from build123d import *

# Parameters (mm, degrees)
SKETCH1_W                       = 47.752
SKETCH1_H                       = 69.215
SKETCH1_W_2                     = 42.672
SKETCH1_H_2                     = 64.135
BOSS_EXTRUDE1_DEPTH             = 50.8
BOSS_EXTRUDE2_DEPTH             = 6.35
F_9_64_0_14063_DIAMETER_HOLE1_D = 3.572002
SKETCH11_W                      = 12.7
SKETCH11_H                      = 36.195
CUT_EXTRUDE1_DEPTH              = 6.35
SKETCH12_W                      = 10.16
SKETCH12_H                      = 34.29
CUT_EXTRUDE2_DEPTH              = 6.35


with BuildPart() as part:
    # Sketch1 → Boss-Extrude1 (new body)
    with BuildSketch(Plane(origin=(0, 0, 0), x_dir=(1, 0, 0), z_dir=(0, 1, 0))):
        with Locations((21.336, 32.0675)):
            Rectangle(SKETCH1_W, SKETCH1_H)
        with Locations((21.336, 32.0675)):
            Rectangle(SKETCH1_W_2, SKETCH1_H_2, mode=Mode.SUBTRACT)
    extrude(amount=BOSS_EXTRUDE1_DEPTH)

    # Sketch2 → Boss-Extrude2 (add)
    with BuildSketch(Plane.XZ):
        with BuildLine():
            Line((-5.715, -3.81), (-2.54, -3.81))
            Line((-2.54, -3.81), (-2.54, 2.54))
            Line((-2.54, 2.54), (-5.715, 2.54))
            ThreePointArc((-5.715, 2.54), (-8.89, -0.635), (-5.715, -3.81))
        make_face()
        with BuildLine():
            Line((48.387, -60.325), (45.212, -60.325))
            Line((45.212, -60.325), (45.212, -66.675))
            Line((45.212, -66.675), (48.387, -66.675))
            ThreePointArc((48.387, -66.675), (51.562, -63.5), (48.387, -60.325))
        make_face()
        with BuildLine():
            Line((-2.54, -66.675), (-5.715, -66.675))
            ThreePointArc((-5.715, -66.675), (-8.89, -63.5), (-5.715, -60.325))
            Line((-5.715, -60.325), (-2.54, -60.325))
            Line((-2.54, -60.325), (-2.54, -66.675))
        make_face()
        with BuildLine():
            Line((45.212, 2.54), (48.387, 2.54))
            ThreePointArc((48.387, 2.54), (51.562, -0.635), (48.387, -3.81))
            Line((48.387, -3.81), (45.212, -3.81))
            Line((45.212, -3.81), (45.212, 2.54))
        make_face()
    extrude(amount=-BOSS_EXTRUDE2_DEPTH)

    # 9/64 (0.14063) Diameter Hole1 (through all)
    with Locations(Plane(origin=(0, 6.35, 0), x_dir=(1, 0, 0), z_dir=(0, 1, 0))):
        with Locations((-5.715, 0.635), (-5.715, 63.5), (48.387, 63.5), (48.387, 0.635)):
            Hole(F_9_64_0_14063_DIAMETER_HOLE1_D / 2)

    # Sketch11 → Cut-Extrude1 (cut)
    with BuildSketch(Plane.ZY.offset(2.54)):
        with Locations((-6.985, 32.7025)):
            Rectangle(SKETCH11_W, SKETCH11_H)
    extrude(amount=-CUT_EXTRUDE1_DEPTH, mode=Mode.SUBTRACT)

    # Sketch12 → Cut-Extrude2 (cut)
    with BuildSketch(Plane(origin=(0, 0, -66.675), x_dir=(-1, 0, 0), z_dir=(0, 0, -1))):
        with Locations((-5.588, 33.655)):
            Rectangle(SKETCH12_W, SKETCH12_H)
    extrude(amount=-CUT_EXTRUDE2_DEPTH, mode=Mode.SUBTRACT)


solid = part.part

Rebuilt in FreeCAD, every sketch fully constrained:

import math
import FreeCAD as App
import Part
import Sketcher
Q = App.Units.Quantity

doc = App.newDocument("Part")
body = doc.addObject("PartDesign::Body", "Body")

# Sketch on XZ plane
sketch1 = body.newObject("Sketcher::SketchObject", "Sketch")
sketch1.AttachmentSupport = (doc.getObject("XZ_Plane"), [""])
sketch1.MapMode = "FlatFace"
sketch1.addGeometry(Part.LineSegment(App.Vector(-3, -67, 0), App.Vector(-3, 3, 0)), False)
sketch1.addGeometry(Part.LineSegment(App.Vector(-3, 3, 0), App.Vector(45, 3, 0)), False)
sketch1.addGeometry(Part.LineSegment(App.Vector(45, 3, 0), App.Vector(45, -67, 0)), False)
sketch1.addGeometry(Part.LineSegment(App.Vector(45, -67, 0), App.Vector(-3, -67, 0)), False)
sketch1.addGeometry(Part.LineSegment(App.Vector(43, 0, 0), App.Vector(0, 0, 0)), False)
sketch1.addGeometry(Part.LineSegment(App.Vector(0, 0, 0), App.Vector(0, -64, 0)), False)
sketch1.addGeometry(Part.LineSegment(App.Vector(0, -64, 0), App.Vector(43, -64, 0)), False)
sketch1.addGeometry(Part.LineSegment(App.Vector(43, -64, 0), App.Vector(43, 0, 0)), False)
sketch1.addConstraint(Sketcher.Constraint("Coincident", 0, 2, 1, 1))
sketch1.addConstraint(Sketcher.Constraint("Coincident", 1, 2, 2, 1))
sketch1.addConstraint(Sketcher.Constraint("Coincident", 2, 2, 3, 1))
sketch1.addConstraint(Sketcher.Constraint("Coincident", 3, 2, 0, 1))
sketch1.addConstraint(Sketcher.Constraint("Coincident", 4, 2, 5, 1))
sketch1.addConstraint(Sketcher.Constraint("Coincident", 5, 2, 6, 1))
sketch1.addConstraint(Sketcher.Constraint("Coincident", 6, 2, 7, 1))
sketch1.addConstraint(Sketcher.Constraint("Coincident", 7, 2, 4, 1))
sketch1.addConstraint(Sketcher.Constraint("Vertical", 0))
sketch1.addConstraint(Sketcher.Constraint("Horizontal", 1))
sketch1.addConstraint(Sketcher.Constraint("Vertical", 2))
sketch1.addConstraint(Sketcher.Constraint("Horizontal", 3))
sketch1.addConstraint(Sketcher.Constraint("Horizontal", 4))
sketch1.addConstraint(Sketcher.Constraint("Vertical", 5))
sketch1.addConstraint(Sketcher.Constraint("Horizontal", 6))
sketch1.addConstraint(Sketcher.Constraint("Vertical", 7))
sketch1.addConstraint(Sketcher.Constraint("Coincident", 4, 2, -1, 1))
sketch1.addConstraint(Sketcher.Constraint("DistanceX", 1, 1, 1, 2, Q("1.88 in")))
sketch1.addConstraint(Sketcher.Constraint("DistanceX", 4, 2, 4, 1, Q("1.68 in")))
sketch1.addConstraint(Sketcher.Constraint("DistanceX", 0, 2, -1, 1, Q("0.1 in")))
sketch1.addConstraint(Sketcher.Constraint("DistanceY", -1, 1, 0, 2, Q("0.1 in")))
sketch1.addConstraint(Sketcher.Constraint("DistanceY", 3, 2, 5, 2, Q("0.1 in")))
sketch1.addConstraint(Sketcher.Constraint("DistanceY", 0, 1, 0, 2, Q("2.725 in")))
pad1 = body.newObject("PartDesign::Pad", "Pad")
pad1.Profile = sketch1
pad1.Length = Q("2 in")
pad1.Reversed = True

# Sketch on XZ plane
sketch2 = body.newObject("Sketcher::SketchObject", "Sketch001")
sketch2.AttachmentSupport = (doc.getObject("XZ_Plane"), [""])
sketch2.MapMode = "FlatFace"
sketch2.addGeometry(Part.LineSegment(App.Vector(-5.7, -3.8, 0), App.Vector(-2.5, -3.8, 0)), False)
sketch2.addGeometry(Part.LineSegment(App.Vector(-2.5, -3.8, 0), App.Vector(-2.5, 2.5, 0)), False)
sketch2.addGeometry(Part.LineSegment(App.Vector(-2.5, 2.5, 0), App.Vector(-5.7, 2.5, 0)), False)
sketch2.addGeometry(Part.ArcOfCircle(Part.Circle(App.Vector(-5.7, -0.6, 0), App.Vector(0, 0, 1), 3.2), math.radians(90), math.radians(270)), False)
sketch2.addGeometry(Part.LineSegment(App.Vector(48.4, -60.3, 0), App.Vector(45.2, -60.3, 0)), False)
sketch2.addGeometry(Part.LineSegment(App.Vector(45.2, -60.3, 0), App.Vector(45.2, -66.7, 0)), False)
sketch2.addGeometry(Part.LineSegment(App.Vector(45.2, -66.7, 0), App.Vector(48.4, -66.7, 0)), False)
sketch2.addGeometry(Part.ArcOfCircle(Part.Circle(App.Vector(48.4, -63.5, 0), App.Vector(0, 0, 1), 3.2), math.radians(-90), math.radians(90)), False)
sketch2.addGeometry(Part.LineSegment(App.Vector(-5.7, -66.7, 0), App.Vector(-2.5, -66.7, 0)), False)
sketch2.addGeometry(Part.LineSegment(App.Vector(-2.5, -66.7, 0), App.Vector(-2.5, -60.3, 0)), False)
sketch2.addGeometry(Part.LineSegment(App.Vector(-2.5, -60.3, 0), App.Vector(-5.7, -60.3, 0)), False)
sketch2.addGeometry(Part.ArcOfCircle(Part.Circle(App.Vector(-5.7, -63.5, 0), App.Vector(0, 0, 1), 3.2), math.radians(90), math.radians(270)), False)
sketch2.addGeometry(Part.LineSegment(App.Vector(48.4, 2.5, 0), App.Vector(45.2, 2.5, 0)), False)
sketch2.addGeometry(Part.LineSegment(App.Vector(45.2, 2.5, 0), App.Vector(45.2, -3.8, 0)), False)
sketch2.addGeometry(Part.LineSegment(App.Vector(45.2, -3.8, 0), App.Vector(48.4, -3.8, 0)), False)
sketch2.addGeometry(Part.ArcOfCircle(Part.Circle(App.Vector(48.4, -0.6, 0), App.Vector(0, 0, 1), 3.2), math.radians(-90), math.radians(90)), False)
sketch2.addConstraint(Sketcher.Constraint("Coincident", 0, 2, 1, 1))
sketch2.addConstraint(Sketcher.Constraint("Coincident", 1, 2, 2, 1))
sketch2.addConstraint(Sketcher.Constraint("Tangent", 2, 2, 3, 1))
sketch2.addConstraint(Sketcher.Constraint("Tangent", 3, 2, 0, 1))
sketch2.addConstraint(Sketcher.Constraint("Coincident", 4, 2, 5, 1))
sketch2.addConstraint(Sketcher.Constraint("Coincident", 5, 2, 6, 1))
sketch2.addConstraint(Sketcher.Constraint("Tangent", 6, 2, 7, 1))
sketch2.addConstraint(Sketcher.Constraint("Tangent", 7, 2, 4, 1))
sketch2.addConstraint(Sketcher.Constraint("Coincident", 8, 2, 9, 1))
sketch2.addConstraint(Sketcher.Constraint("Coincident", 9, 2, 10, 1))
sketch2.addConstraint(Sketcher.Constraint("Tangent", 10, 2, 11, 1))
sketch2.addConstraint(Sketcher.Constraint("Tangent", 11, 2, 8, 1))
sketch2.addConstraint(Sketcher.Constraint("Coincident", 12, 2, 13, 1))
sketch2.addConstraint(Sketcher.Constraint("Coincident", 13, 2, 14, 1))
sketch2.addConstraint(Sketcher.Constraint("Tangent", 14, 2, 15, 1))
sketch2.addConstraint(Sketcher.Constraint("Tangent", 15, 2, 12, 1))
sketch2.addConstraint(Sketcher.Constraint("Horizontal", 0))
sketch2.addConstraint(Sketcher.Constraint("Vertical", 1))
sketch2.addConstraint(Sketcher.Constraint("Horizontal", 2))
sketch2.addConstraint(Sketcher.Constraint("Horizontal", 4))
sketch2.addConstraint(Sketcher.Constraint("Vertical", 5))
sketch2.addConstraint(Sketcher.Constraint("Horizontal", 6))
sketch2.addConstraint(Sketcher.Constraint("Horizontal", 8))
sketch2.addConstraint(Sketcher.Constraint("Vertical", 9))
sketch2.addConstraint(Sketcher.Constraint("Horizontal", 10))
sketch2.addConstraint(Sketcher.Constraint("Horizontal", 12))
sketch2.addConstraint(Sketcher.Constraint("Vertical", 13))
sketch2.addConstraint(Sketcher.Constraint("Horizontal", 14))
sketch2.addConstraint(Sketcher.Constraint("Equal", 3, 7))
sketch2.addConstraint(Sketcher.Constraint("Equal", 7, 11))
sketch2.addConstraint(Sketcher.Constraint("Equal", 11, 15))
sketch2.addConstraint(Sketcher.Constraint("Horizontal", 7, 3, 11, 3))
sketch2.addConstraint(Sketcher.Constraint("Horizontal", 3, 3, 15, 3))
sketch2.addConstraint(Sketcher.Constraint("Vertical", 3, 3, 11, 3))
sketch2.addConstraint(Sketcher.Constraint("Vertical", 7, 3, 15, 3))
sketch2.addConstraint(Sketcher.Constraint("Vertical", 1, 2, 8, 2))
sketch2.addConstraint(Sketcher.Constraint("Vertical", 5, 2, 12, 2))
sketch2.addConstraint(Sketcher.Constraint("Equal", 2, 4))
sketch2.addConstraint(Sketcher.Constraint("Radius", 3, Q("0.125 in")))
sketch2.addConstraint(Sketcher.Constraint("DistanceY", 7, 3, -1, 1, Q("2.5 in")))
sketch2.addConstraint(Sketcher.Constraint("DistanceX", 0, 2, -1, 1, Q("0.1 in")))
sketch2.addConstraint(Sketcher.Constraint("DistanceY", -1, 1, 1, 2, Q("0.1 in")))
sketch2.addConstraint(Sketcher.Constraint("DistanceX", 0, 1, 0, 2, Q("0.125 in")))
sketch2.addConstraint(Sketcher.Constraint("DistanceX", -1, 1, 4, 2, Q("1.78 in")))
pad2 = body.newObject("PartDesign::Pad", "Pad001")
pad2.Profile = sketch2
pad2.Length = Q("0.25 in")
pad2.Reversed = True

# Sketch on XZ plane
sketch3 = body.newObject("Sketcher::SketchObject", "Sketch002")
sketch3.AttachmentSupport = (doc.getObject("XZ_Plane"), [""])
sketch3.MapMode = "FlatFace"
sketch3.AttachmentOffset = App.Placement(App.Vector(0, 0, -0.25 * 25.4), App.Rotation())
sketch3.addGeometry(Part.Circle(App.Vector(-5.7, -0.6, 0), App.Vector(0, 0, 1), 1.8), False)
sketch3.addGeometry(Part.Circle(App.Vector(-5.7, -63.5, 0), App.Vector(0, 0, 1), 1.8), False)
sketch3.addGeometry(Part.Circle(App.Vector(48.4, -63.5, 0), App.Vector(0, 0, 1), 1.8), False)
sketch3.addGeometry(Part.Circle(App.Vector(48.4, -0.6, 0), App.Vector(0, 0, 1), 1.8), False)
sketch3.addConstraint(Sketcher.Constraint("Equal", 0, 1))
sketch3.addConstraint(Sketcher.Constraint("Equal", 1, 2))
sketch3.addConstraint(Sketcher.Constraint("Equal", 2, 3))
sketch3.addConstraint(Sketcher.Constraint("Horizontal", 1, 3, 2, 3))
sketch3.addConstraint(Sketcher.Constraint("Horizontal", 0, 3, 3, 3))
sketch3.addConstraint(Sketcher.Constraint("Vertical", 0, 3, 1, 3))
sketch3.addConstraint(Sketcher.Constraint("Vertical", 2, 3, 3, 3))
sketch3.addConstraint(Sketcher.Constraint("DistanceY", 1, 3, -1, 1, Q("2.5 in")))
sketch3.addConstraint(Sketcher.Constraint("Diameter", 0, 3.572002))
sketch3.addConstraint(Sketcher.Constraint("DistanceX", 1, 3, 2, 3, Q("2.13 in")))
sketch3.addConstraint(Sketcher.Constraint("DistanceX", 0, 3, -1, 1, Q("0.225 in")))
sketch3.addConstraint(Sketcher.Constraint("DistanceY", 0, 3, -1, 1, Q("0.025 in")))
doc.recompute()
hole = body.newObject("PartDesign::Hole", "Hole")
hole.Profile = sketch3
hole.ThreadType = "None"
hole.Diameter = 3.572002
hole.DepthType = "ThroughAll"
hole.Reversed = True

# Sketch on YZ plane
sketch4 = body.newObject("Sketcher::SketchObject", "Sketch003")
sketch4.AttachmentSupport = (doc.getObject("YZ_Plane"), [""])
sketch4.MapMode = "FlatFace"
sketch4.AttachmentOffset = App.Placement(App.Vector(0, 0, -0.1 * 25.4), App.Rotation())
sketch4.addGeometry(Part.LineSegment(App.Vector(51, -13, 0), App.Vector(15, -13, 0)), False)
sketch4.addGeometry(Part.LineSegment(App.Vector(15, -13, 0), App.Vector(15, -1, 0)), False)
sketch4.addGeometry(Part.LineSegment(App.Vector(15, -1, 0), App.Vector(51, -1, 0)), False)
sketch4.addGeometry(Part.LineSegment(App.Vector(51, -1, 0), App.Vector(51, -13, 0)), False)
sketch4.addConstraint(Sketcher.Constraint("Coincident", 0, 2, 1, 1))
sketch4.addConstraint(Sketcher.Constraint("Coincident", 1, 2, 2, 1))
sketch4.addConstraint(Sketcher.Constraint("Coincident", 2, 2, 3, 1))
sketch4.addConstraint(Sketcher.Constraint("Coincident", 3, 2, 0, 1))
sketch4.addConstraint(Sketcher.Constraint("Horizontal", 0))
sketch4.addConstraint(Sketcher.Constraint("Vertical", 1))
sketch4.addConstraint(Sketcher.Constraint("Horizontal", 2))
sketch4.addConstraint(Sketcher.Constraint("Vertical", 3))
sketch4.addConstraint(Sketcher.Constraint("DistanceY", 1, 1, 1, 2, Q("0.5 in")))
sketch4.addConstraint(Sketcher.Constraint("DistanceX", -1, 1, 2, 2, Q("2 in")))
sketch4.addConstraint(Sketcher.Constraint("DistanceX", 0, 2, 0, 1, Q("1.425 in")))
sketch4.addConstraint(Sketcher.Constraint("DistanceY", 0, 2, -1, 1, Q("0.525 in")))
pocket1 = body.newObject("PartDesign::Pocket", "Pocket")
pocket1.Profile = sketch4
pocket1.Length = Q("0.25 in")
pocket1.Reversed = True

# Sketch on XY plane
sketch5 = body.newObject("Sketcher::SketchObject", "Sketch004")
sketch5.AttachmentSupport = (doc.getObject("XY_Plane"), [""])
sketch5.MapMode = "FlatFace"
sketch5.AttachmentOffset = App.Placement(App.Vector(0, 0, -2.625 * 25.4), App.Rotation())
sketch5.addGeometry(Part.LineSegment(App.Vector(11, 51, 0), App.Vector(11, 17, 0)), False)
sketch5.addGeometry(Part.LineSegment(App.Vector(11, 17, 0), App.Vector(1, 17, 0)), False)
sketch5.addGeometry(Part.LineSegment(App.Vector(1, 17, 0), App.Vector(1, 51, 0)), False)
sketch5.addGeometry(Part.LineSegment(App.Vector(1, 51, 0), App.Vector(11, 51, 0)), False)
sketch5.addConstraint(Sketcher.Constraint("Coincident", 0, 2, 1, 1))
sketch5.addConstraint(Sketcher.Constraint("Coincident", 1, 2, 2, 1))
sketch5.addConstraint(Sketcher.Constraint("Coincident", 2, 2, 3, 1))
sketch5.addConstraint(Sketcher.Constraint("Coincident", 3, 2, 0, 1))
sketch5.addConstraint(Sketcher.Constraint("Vertical", 0))
sketch5.addConstraint(Sketcher.Constraint("Horizontal", 1))
sketch5.addConstraint(Sketcher.Constraint("Vertical", 2))
sketch5.addConstraint(Sketcher.Constraint("Horizontal", 3))
sketch5.addConstraint(Sketcher.Constraint("DistanceX", 1, 2, 1, 1, Q("0.4 in")))
sketch5.addConstraint(Sketcher.Constraint("DistanceY", -1, 1, 2, 2, Q("2 in")))
sketch5.addConstraint(Sketcher.Constraint("DistanceY", 0, 2, 0, 1, Q("1.35 in")))
sketch5.addConstraint(Sketcher.Constraint("DistanceX", -1, 1, 0, 2, Q("0.42 in")))
pocket2 = body.newObject("PartDesign::Pocket", "Pocket001")
pocket2.Profile = sketch5
pocket2.Length = Q("0.25 in")
pocket2.Reversed = True

doc.recompute()
